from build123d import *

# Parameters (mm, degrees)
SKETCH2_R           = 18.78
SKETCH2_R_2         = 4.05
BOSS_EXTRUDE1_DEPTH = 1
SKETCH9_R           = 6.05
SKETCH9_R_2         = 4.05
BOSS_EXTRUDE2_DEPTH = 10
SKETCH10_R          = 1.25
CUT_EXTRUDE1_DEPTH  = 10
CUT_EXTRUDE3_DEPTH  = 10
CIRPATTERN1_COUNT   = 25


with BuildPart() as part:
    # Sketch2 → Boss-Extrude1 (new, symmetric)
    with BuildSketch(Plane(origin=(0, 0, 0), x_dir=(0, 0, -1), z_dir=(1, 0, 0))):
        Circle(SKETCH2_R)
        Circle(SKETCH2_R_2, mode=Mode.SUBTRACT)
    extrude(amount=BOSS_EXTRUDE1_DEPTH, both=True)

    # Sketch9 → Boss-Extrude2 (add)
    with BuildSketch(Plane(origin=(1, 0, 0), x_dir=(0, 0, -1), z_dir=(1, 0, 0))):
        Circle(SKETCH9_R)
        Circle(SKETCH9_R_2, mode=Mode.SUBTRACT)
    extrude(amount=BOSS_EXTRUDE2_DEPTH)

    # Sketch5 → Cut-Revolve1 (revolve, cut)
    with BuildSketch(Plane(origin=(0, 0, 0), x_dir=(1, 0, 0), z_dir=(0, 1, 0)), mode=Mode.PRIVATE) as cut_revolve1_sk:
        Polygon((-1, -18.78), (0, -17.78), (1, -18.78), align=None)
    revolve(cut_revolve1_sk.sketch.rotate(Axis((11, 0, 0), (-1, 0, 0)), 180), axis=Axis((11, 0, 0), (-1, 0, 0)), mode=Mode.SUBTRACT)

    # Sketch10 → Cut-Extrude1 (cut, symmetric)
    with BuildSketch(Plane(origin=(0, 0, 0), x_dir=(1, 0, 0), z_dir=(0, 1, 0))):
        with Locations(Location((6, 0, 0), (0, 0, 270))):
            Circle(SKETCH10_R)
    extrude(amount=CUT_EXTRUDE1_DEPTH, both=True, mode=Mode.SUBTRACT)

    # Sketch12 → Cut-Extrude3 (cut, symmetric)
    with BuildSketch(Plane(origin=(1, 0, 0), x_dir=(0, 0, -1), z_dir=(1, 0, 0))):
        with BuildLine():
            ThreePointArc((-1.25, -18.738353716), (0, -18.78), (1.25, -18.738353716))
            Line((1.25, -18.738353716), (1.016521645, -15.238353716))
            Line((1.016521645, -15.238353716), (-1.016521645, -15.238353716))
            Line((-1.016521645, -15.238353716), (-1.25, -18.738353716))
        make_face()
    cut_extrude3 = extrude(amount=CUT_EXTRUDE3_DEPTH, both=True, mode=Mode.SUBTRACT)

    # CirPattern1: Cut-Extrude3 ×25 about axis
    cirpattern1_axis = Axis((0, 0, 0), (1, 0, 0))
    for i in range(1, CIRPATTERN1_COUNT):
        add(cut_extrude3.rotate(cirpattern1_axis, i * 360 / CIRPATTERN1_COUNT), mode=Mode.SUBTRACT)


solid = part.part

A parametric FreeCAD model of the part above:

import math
import FreeCAD as App
import Part
import Sketcher
from FreeCAD import Vector


def add_polygon(sketch, points):
    """Adds a closed chain of lines whose ends are joined by coincident constraints."""
    first, n = sketch.GeometryCount, len(points)
    for a, b in zip(points, points[1:] + points[:1]):
        sketch.addGeometry(Part.LineSegment(App.Vector(*a, 0), App.Vector(*b, 0)), False)
    for i in range(n):
        sketch.addConstraint(Sketcher.Constraint("Coincident", first + i, 2, first + (i + 1) % n, 1))

doc = App.newDocument("Part")
body = doc.addObject("PartDesign::Body", "Body")

sketch1 = body.newObject("Sketcher::SketchObject", "Sketch")
sketch1.AttachmentSupport = (doc.getObject("YZ_Plane"), [""])
sketch1.MapMode = "FlatFace"
sketch1.addGeometry(Part.Circle(Vector(0, 0, 0), Vector(0, 0, 1), 18.78), False)
sketch1.addGeometry(Part.Circle(Vector(0, 0, 0), Vector(0, 0, 1), 4.05), False)
sketch1.addConstraint(Sketcher.Constraint("Coincident", 0, 3, -1, 1))
sketch1.addConstraint(Sketcher.Constraint("Coincident", 1, 3, -1, 1))
sketch1.addConstraint(Sketcher.Constraint("Diameter", 1, 8.1))
sketch1.addConstraint(Sketcher.Constraint("Diameter", 0, 37.56))
pad1 = body.newObject("PartDesign::Pad", "Pad")
pad1.Profile = sketch1
pad1.Length = 2
pad1.Midplane = True

sketch2 = body.newObject("Sketcher::SketchObject", "Sketch001")
sketch2.AttachmentSupport = (doc.getObject("YZ_Plane"), [""])
sketch2.MapMode = "FlatFace"
sketch2.AttachmentOffset = App.Placement(Vector(0, 0, 1), App.Rotation())
sketch2.addGeometry(Part.Circle(Vector(0, 0, 0), Vector(0, 0, 1), 6.05), False)
sketch2.addGeometry(Part.Circle(Vector(0, 0, 0), Vector(0, 0, 1), 4.05), False)
sketch2.addConstraint(Sketcher.Constraint("Coincident", 0, 3, -1, 1))
sketch2.addConstraint(Sketcher.Constraint("Coincident", 1, 3, -1, 1))
sketch2.addConstraint(Sketcher.Constraint("Diameter", 0, 12.1))
sketch2.addConstraint(Sketcher.Constraint("Diameter", 1, 8.1))
pad2 = body.newObject("PartDesign::Pad", "Pad001")
pad2.Profile = sketch2
pad2.Length = 10

sketch3 = body.newObject("Sketcher::SketchObject", "Sketch002")
sketch3.AttachmentSupport = (doc.getObject("XZ_Plane"), [""])
sketch3.MapMode = "FlatFace"
add_polygon(sketch3, [(0, 17.78), (-1, 18.78), (1, 18.78)])
sketch3.addConstraint(Sketcher.Constraint("Horizontal", 1))
sketch3.addConstraint(Sketcher.Constraint("PointOnObject", 2, 2, -2))
sketch3.addConstraint(Sketcher.Constraint("Perpendicular", 0, 2))
sketch3.addConstraint(Sketcher.Constraint("Equal", 0, 2))
sketch3.addConstraint(Sketcher.Constraint("DistanceX", 1, 1, 1, 2, 2.0))
sketch3.addConstraint(Sketcher.Constraint("DistanceY", -1, 1, 0, 2, 18.78))
groove = body.newObject("PartDesign::Groove", "Groove")
groove.Profile = sketch3
groove.ReferenceAxis = (sketch3, ["H_Axis"])
groove.Angle = 360

sketch4 = body.newObject("Sketcher::SketchObject", "Sketch003")
sketch4.AttachmentSupport = (doc.getObject("XZ_Plane"), [""])
sketch4.MapMode = "FlatFace"
sketch4.addGeometry(Part.Circle(Vector(6, 0, 0), Vector(0, 0, 1), 1.25), False)
sketch4.addConstraint(Sketcher.Constraint("PointOnObject", 0, 3, -1))
sketch4.addConstraint(Sketcher.Constraint("Diameter", 0, 2.5))
sketch4.addConstraint(Sketcher.Constraint("DistanceX", -1, 1, 0, 3, 6.0))
pocket1 = body.newObject("PartDesign::Pocket", "Pocket")
pocket1.Profile = sketch4
pocket1.Length = 20
pocket1.Midplane = True

sketch5 = body.newObject("Sketcher::SketchObject", "Sketch004")
sketch5.AttachmentSupport = (doc.getObject("YZ_Plane"), [""])
sketch5.MapMode = "FlatFace"
sketch5.AttachmentOffset = App.Placement(Vector(0, 0, 1), App.Rotation())
sketch5.addGeometry(Part.ArcOfCircle(Part.Circle(Vector(0, 0, 0), Vector(0, 0, 1), 18.78), math.radians(176.183562), math.radians(183.816438)), False)
sketch5.addGeometry(Part.LineSegment(Vector(-18.738354, -1.25, 0), Vector(-15.238354, -1.016522, 0)), False)
sketch5.addGeometry(Part.LineSegment(Vector(-15.238354, -1.016522, 0), Vector(-15.238354, 1.016522, 0)), False)
sketch5.addGeometry(Part.LineSegment(Vector(-15.238354, 1.016522, 0), Vector(-18.738354, 1.25, 0)), False)
sketch5.addConstraint(Sketcher.Constraint("Coincident", 0, 2, 1, 1))
sketch5.addConstraint(Sketcher.Constraint("Coincident", 1, 2, 2, 1))
sketch5.addConstraint(Sketcher.Constraint("Coincident", 2, 2, 3, 1))
sketch5.addConstraint(Sketcher.Constraint("Coincident", 3, 2, 0, 1))
sketch5.addConstraint(Sketcher.Constraint("Vertical", 2))
sketch5.addConstraint(Sketcher.Constraint("Coincident", 0, 3, -1, 1))
sketch5.addConstraint(Sketcher.Constraint("Vertical", 0, 2, 3, 2))
sketch5.addConstraint(Sketcher.Constraint("Equal", 1, 3))
sketch5.addConstraint(Sketcher.Constraint("Radius", 0, 18.78))
sketch5.addConstraint(Sketcher.Constraint("DistanceX", 0, 2, 1, 2, 3.5))
sketch5.addConstraint(Sketcher.Constraint("DistanceY", 0, 2, 3, 2, 2.5))
sketch5.addConstraint(Sketcher.Constraint("Distance", 1, 3.507779))
pocket2 = body.newObject("PartDesign::Pocket", "Pocket001")
pocket2.Profile = sketch5
pocket2.Length = 20
pocket2.Midplane = True
doc.recompute()

polarpattern = body.newObject("PartDesign::PolarPattern", "PolarPattern")
polarpattern.Originals = [pocket2]
polarpattern.Axis = (doc.getObject("X_Axis"), [""])
polarpattern.Angle = 360
polarpattern.Occurrences = 25
body.Tip = polarpattern

doc.recompute()
